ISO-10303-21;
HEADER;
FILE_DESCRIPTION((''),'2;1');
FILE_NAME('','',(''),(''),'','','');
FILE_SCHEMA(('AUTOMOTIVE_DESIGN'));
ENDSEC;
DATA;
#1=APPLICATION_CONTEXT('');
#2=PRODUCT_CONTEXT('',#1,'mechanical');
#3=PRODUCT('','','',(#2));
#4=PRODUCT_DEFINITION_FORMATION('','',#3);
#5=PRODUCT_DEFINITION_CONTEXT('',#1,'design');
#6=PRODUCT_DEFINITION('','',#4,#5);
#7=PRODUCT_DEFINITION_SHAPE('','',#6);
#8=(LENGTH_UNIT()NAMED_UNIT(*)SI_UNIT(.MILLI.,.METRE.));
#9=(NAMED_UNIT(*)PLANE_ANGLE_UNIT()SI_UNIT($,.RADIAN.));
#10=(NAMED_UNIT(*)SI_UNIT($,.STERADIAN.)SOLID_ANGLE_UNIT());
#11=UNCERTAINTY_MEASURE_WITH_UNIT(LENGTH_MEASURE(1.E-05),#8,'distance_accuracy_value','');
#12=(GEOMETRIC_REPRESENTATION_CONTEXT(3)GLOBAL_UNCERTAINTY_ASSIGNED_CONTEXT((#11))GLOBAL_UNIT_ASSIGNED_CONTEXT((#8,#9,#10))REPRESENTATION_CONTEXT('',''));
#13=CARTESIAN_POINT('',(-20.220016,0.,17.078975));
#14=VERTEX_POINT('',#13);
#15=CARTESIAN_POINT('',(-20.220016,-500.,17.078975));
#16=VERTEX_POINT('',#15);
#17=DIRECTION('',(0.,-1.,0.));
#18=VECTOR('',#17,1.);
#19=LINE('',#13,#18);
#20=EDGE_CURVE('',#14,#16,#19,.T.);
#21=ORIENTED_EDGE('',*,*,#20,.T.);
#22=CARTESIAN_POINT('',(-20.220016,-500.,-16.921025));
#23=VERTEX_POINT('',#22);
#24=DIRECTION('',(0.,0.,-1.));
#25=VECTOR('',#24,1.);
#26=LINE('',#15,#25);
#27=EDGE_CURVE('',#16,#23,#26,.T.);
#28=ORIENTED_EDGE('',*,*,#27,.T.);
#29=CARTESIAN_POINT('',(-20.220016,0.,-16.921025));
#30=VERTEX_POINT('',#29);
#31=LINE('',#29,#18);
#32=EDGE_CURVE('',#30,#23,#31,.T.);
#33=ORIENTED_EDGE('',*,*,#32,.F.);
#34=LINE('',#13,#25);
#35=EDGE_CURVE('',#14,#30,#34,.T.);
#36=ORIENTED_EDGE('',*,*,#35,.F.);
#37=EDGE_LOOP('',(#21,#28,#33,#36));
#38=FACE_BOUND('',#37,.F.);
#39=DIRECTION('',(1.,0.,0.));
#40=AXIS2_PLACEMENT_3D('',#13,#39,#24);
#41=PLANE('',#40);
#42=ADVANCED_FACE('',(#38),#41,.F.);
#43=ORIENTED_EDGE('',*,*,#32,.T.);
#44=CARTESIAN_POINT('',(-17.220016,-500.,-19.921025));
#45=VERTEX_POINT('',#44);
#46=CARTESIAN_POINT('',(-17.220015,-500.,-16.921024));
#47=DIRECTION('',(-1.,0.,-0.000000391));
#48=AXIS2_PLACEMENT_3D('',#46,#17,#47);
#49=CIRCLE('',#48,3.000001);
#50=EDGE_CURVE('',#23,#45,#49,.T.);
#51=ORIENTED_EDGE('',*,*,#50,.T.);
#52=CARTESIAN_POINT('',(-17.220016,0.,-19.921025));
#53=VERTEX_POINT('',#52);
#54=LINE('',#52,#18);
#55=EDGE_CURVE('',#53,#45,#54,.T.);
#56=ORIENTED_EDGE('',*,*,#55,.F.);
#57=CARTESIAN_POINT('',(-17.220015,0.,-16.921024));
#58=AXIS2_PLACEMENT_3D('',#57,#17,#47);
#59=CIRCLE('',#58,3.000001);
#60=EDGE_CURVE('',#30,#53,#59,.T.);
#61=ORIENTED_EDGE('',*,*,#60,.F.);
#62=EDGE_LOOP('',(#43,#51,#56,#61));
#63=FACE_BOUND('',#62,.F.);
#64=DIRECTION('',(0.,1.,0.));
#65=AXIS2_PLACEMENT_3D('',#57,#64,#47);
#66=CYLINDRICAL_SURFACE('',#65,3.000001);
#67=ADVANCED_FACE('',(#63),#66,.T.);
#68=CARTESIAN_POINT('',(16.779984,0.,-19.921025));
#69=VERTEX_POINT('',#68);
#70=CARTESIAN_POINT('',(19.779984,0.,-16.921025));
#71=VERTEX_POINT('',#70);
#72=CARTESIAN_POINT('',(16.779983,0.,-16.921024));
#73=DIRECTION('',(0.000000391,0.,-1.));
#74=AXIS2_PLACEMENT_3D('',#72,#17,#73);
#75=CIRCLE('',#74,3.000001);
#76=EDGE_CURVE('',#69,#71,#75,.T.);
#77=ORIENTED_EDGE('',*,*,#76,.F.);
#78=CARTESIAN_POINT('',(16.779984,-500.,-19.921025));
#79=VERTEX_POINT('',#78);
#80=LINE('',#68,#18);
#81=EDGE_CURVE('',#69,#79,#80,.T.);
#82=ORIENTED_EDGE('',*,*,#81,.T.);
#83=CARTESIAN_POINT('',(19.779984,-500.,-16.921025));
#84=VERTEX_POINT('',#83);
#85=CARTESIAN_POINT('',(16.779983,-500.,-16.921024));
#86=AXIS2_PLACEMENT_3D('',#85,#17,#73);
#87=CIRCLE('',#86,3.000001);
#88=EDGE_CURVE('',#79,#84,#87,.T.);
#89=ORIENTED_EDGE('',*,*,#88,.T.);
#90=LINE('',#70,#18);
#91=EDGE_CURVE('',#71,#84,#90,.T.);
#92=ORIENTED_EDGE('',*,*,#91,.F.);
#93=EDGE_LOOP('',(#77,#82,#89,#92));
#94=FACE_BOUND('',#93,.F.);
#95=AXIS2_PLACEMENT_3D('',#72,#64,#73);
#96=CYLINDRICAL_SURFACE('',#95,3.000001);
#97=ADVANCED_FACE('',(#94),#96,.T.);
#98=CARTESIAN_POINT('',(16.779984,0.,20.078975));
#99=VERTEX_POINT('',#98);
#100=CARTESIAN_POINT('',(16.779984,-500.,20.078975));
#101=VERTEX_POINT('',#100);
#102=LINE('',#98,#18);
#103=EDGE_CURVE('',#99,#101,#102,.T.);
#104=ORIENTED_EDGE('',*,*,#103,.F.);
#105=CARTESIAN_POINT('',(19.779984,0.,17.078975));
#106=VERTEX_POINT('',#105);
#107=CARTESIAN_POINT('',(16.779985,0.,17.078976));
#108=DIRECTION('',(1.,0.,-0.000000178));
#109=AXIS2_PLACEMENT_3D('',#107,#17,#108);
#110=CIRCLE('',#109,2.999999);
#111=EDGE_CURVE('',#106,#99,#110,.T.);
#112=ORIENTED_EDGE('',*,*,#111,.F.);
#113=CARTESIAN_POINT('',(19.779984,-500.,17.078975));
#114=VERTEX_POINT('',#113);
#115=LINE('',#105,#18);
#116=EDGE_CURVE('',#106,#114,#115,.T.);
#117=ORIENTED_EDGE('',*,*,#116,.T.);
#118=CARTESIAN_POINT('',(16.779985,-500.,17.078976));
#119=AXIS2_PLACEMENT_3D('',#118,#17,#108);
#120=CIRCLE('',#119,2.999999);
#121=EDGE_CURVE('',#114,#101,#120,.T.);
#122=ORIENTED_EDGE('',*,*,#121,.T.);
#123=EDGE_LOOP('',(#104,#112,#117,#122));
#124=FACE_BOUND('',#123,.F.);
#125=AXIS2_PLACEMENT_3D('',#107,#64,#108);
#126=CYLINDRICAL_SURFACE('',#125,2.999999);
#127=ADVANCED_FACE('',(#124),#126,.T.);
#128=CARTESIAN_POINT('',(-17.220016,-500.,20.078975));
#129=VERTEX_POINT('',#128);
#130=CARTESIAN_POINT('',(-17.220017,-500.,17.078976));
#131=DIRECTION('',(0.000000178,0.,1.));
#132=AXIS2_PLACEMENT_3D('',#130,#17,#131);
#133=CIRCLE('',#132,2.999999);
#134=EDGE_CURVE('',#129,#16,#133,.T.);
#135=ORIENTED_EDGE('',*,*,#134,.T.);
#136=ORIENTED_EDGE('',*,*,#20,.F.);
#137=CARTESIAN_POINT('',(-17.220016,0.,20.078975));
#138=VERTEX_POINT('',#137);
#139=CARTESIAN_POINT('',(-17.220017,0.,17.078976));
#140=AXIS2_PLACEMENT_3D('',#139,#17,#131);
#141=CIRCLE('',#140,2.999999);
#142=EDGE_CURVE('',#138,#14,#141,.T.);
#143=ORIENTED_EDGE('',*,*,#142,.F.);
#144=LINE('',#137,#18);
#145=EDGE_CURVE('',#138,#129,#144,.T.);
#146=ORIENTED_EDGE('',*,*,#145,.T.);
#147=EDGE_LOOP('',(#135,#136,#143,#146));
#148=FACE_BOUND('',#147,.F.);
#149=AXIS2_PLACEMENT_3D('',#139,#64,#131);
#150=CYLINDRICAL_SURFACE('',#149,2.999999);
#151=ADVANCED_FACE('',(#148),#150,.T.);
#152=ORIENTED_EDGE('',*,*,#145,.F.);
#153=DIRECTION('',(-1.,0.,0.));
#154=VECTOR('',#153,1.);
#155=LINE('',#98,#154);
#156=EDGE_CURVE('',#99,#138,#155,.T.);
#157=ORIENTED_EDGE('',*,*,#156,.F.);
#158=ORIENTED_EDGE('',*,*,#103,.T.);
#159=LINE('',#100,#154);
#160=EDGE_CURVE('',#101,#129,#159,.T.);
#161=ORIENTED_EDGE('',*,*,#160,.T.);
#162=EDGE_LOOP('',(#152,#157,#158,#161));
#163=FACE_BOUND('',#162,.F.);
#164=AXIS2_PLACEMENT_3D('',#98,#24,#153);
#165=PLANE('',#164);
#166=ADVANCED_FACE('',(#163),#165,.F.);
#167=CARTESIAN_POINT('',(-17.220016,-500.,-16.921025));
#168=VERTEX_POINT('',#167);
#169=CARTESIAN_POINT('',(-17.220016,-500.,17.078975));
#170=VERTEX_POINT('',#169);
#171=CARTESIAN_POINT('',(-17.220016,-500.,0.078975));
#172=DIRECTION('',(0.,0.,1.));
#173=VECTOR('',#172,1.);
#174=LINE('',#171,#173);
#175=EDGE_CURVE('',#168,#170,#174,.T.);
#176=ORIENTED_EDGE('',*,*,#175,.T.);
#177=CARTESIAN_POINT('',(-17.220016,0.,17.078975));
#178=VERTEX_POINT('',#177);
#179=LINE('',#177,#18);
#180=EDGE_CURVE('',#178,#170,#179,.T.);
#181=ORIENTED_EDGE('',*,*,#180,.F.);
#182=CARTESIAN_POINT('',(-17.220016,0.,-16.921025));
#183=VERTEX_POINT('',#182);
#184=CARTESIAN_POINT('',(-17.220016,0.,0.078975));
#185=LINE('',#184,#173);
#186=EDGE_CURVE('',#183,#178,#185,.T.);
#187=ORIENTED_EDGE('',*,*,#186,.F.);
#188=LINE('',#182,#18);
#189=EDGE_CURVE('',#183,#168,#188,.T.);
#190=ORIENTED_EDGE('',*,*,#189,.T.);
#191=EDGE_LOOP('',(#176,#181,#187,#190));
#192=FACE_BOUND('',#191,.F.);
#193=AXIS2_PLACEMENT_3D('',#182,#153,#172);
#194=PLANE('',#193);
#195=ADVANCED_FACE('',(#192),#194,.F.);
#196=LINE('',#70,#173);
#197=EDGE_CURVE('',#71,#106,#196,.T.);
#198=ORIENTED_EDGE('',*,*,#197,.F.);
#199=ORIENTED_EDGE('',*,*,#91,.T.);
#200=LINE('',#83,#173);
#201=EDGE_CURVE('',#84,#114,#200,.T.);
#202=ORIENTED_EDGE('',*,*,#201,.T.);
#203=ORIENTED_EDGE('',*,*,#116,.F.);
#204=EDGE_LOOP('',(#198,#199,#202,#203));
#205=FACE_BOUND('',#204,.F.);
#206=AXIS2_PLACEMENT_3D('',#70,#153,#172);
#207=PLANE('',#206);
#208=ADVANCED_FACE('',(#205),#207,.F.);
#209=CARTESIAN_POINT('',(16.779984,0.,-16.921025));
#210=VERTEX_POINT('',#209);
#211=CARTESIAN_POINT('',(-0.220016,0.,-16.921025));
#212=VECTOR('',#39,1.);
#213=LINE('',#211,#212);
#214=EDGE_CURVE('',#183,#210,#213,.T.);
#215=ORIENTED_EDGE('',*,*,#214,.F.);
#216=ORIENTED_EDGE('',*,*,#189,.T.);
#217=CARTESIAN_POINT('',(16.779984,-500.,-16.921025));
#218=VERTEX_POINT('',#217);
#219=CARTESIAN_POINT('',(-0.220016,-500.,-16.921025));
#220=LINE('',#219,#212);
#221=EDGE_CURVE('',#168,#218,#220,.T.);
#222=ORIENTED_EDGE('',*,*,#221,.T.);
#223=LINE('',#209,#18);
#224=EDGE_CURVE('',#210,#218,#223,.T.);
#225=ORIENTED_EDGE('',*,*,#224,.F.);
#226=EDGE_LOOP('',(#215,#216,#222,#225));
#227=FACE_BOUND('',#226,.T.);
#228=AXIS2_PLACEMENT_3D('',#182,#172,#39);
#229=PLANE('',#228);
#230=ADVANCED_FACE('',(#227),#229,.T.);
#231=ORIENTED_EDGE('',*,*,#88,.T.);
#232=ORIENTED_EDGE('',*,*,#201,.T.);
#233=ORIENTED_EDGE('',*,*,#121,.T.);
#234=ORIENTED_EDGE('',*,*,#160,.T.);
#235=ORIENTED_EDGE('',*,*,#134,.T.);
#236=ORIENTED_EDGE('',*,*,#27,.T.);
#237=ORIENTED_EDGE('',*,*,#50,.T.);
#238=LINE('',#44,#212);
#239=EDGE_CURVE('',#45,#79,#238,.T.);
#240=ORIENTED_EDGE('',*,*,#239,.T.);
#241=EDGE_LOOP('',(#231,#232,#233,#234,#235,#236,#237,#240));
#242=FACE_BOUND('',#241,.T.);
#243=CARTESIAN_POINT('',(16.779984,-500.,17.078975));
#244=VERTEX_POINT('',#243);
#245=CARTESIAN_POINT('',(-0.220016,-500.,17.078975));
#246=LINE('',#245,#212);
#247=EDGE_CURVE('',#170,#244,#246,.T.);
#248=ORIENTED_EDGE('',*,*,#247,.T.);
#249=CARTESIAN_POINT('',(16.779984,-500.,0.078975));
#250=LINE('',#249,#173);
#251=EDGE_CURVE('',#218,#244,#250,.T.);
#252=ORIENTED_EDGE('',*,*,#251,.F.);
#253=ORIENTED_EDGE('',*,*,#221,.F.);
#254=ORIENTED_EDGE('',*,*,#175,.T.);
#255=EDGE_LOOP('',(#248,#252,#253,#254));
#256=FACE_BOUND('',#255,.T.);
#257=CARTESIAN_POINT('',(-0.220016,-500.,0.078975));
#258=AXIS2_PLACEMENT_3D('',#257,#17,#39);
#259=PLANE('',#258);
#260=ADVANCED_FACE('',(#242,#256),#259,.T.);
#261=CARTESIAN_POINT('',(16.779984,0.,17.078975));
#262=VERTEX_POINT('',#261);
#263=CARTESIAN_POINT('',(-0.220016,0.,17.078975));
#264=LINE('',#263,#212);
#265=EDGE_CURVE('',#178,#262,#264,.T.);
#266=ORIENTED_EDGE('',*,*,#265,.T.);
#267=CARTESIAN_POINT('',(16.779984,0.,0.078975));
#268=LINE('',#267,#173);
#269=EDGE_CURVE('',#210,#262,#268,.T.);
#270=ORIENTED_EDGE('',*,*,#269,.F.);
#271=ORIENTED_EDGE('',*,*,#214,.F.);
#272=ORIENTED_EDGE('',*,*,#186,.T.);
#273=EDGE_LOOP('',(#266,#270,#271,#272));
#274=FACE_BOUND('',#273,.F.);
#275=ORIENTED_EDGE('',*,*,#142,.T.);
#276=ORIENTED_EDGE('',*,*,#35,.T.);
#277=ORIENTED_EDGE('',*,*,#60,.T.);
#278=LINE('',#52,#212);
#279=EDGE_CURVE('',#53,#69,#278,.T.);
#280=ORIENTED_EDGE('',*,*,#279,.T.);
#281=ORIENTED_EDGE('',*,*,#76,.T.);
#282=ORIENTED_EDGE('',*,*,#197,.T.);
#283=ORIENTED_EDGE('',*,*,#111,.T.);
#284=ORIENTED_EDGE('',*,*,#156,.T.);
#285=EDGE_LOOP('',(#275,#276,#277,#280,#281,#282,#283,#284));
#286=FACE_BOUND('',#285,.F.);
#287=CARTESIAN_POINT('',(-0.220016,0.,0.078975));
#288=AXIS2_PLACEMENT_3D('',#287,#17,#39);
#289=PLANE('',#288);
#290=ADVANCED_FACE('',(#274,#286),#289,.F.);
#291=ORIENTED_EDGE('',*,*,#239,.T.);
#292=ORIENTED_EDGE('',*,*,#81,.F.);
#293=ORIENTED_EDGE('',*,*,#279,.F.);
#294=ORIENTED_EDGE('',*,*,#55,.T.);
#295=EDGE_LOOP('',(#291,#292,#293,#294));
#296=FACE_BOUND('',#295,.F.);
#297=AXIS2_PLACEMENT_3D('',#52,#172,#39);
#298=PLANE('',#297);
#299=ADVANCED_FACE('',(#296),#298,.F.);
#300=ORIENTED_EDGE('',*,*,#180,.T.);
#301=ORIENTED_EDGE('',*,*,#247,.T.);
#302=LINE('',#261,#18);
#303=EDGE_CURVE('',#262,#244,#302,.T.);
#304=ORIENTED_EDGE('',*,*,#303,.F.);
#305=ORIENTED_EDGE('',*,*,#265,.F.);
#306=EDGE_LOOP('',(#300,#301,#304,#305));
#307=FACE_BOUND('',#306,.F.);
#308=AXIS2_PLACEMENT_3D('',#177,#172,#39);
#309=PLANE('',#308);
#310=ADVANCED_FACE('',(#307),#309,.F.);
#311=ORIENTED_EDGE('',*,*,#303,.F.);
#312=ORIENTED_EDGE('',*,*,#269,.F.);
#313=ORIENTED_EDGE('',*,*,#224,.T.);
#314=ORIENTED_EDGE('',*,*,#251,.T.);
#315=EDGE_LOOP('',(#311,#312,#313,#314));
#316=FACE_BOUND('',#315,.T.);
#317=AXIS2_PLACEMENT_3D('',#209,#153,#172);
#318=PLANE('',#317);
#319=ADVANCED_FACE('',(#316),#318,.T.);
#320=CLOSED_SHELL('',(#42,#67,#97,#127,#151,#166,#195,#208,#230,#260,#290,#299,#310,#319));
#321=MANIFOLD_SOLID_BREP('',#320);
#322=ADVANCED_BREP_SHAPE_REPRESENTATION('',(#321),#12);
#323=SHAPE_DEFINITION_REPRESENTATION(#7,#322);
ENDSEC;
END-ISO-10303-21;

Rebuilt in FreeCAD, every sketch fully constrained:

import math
import FreeCAD as App
import Part
import Sketcher
from FreeCAD import Vector

doc = App.newDocument("Part")
body = doc.addObject("PartDesign::Body", "Body")

sketch1 = body.newObject("Sketcher::SketchObject", "Sketch")
sketch1.AttachmentSupport = (doc.getObject("XZ_Plane"), [""])
sketch1.MapMode = "FlatFace"
sketch1.addGeometry([
    Part.ArcOfCircle(Part.Circle(Vector(16.8, 17.1, 0), Vector(0, 0, 1), 3), math.radians(0), math.radians(90)),
    Part.LineSegment(Vector(16.8, 20.1, 0), Vector(-17.2, 20.1, 0)),
    Part.ArcOfCircle(Part.Circle(Vector(-17.2, 17.1, 0), Vector(0, 0, 1), 3), math.radians(90), math.radians(180)),
    Part.LineSegment(Vector(-20.2, 17.1, 0), Vector(-20.2, -16.9, 0)),
    Part.ArcOfCircle(Part.Circle(Vector(-17.2, -16.9, 0), Vector(0, 0, 1), 3), math.radians(-180), math.radians(-90)),
    Part.LineSegment(Vector(-17.2, -19.9, 0), Vector(16.8, -19.9, 0)),
    Part.ArcOfCircle(Part.Circle(Vector(16.8, -16.9, 0), Vector(0, 0, 1), 3), math.radians(-90), math.radians(0)),
    Part.LineSegment(Vector(19.8, -16.9, 0), Vector(19.8, 17.1, 0)),
    Part.LineSegment(Vector(16.8, -16.9, 0), Vector(-17.2, -16.9, 0)),
    Part.LineSegment(Vector(-17.2, -16.9, 0), Vector(-17.2, 17.1, 0)),
    Part.LineSegment(Vector(-17.2, 17.1, 0), Vector(16.8, 17.1, 0)),
    Part.LineSegment(Vector(16.8, 17.1, 0), Vector(16.8, -16.9, 0)),
], False)
sketch1.addConstraint([
    Sketcher.Constraint("Tangent", 0, 2, 1, 1),
    Sketcher.Constraint("Tangent", 1, 2, 2, 1),
    Sketcher.Constraint("Tangent", 2, 2, 3, 1),
    Sketcher.Constraint("Tangent", 3, 2, 4, 1),
    Sketcher.Constraint("Tangent", 4, 2, 5, 1),
    Sketcher.Constraint("Tangent", 5, 2, 6, 1),
    Sketcher.Constraint("Tangent", 6, 2, 7, 1),
    Sketcher.Constraint("Tangent", 7, 2, 0, 1),
    Sketcher.Constraint("Coincident", 8, 2, 9, 1),
    Sketcher.Constraint("Coincident", 9, 2, 10, 1),
    Sketcher.Constraint("Coincident", 10, 2, 11, 1),
    Sketcher.Constraint("Coincident", 11, 2, 8, 1),
    Sketcher.Constraint("Horizontal", 1),
    Sketcher.Constraint("Vertical", 3),
    Sketcher.Constraint("Horizontal", 5),
    Sketcher.Constraint("Vertical", 7),
    Sketcher.Constraint("Horizontal", 8),
    Sketcher.Constraint("Vertical", 9),
    Sketcher.Constraint("Horizontal", 10),
    Sketcher.Constraint("Vertical", 11),
    Sketcher.Constraint("Coincident", 8, 2, 4, 3),
    Sketcher.Constraint("Coincident", 9, 2, 2, 3),
    Sketcher.Constraint("Coincident", 10, 2, 0, 3),
    Sketcher.Constraint("Equal", 4, 6),
    Sketcher.Constraint("Equal", 10, 3),
    Sketcher.Constraint("Radius", 0, 2.999999),
    Sketcher.Constraint("DistanceX", 1, 2, 1, 1, 34.0),
    Sketcher.Constraint("DistanceX", -1, 1, 0, 3, 16.779985),
    Sketcher.Constraint("DistanceY", -1, 1, 0, 3, 17.078976),
])
pad1 = body.newObject("PartDesign::Pad", "Pad")
pad1.Profile = sketch1
pad1.Length = 500

doc.recompute()
